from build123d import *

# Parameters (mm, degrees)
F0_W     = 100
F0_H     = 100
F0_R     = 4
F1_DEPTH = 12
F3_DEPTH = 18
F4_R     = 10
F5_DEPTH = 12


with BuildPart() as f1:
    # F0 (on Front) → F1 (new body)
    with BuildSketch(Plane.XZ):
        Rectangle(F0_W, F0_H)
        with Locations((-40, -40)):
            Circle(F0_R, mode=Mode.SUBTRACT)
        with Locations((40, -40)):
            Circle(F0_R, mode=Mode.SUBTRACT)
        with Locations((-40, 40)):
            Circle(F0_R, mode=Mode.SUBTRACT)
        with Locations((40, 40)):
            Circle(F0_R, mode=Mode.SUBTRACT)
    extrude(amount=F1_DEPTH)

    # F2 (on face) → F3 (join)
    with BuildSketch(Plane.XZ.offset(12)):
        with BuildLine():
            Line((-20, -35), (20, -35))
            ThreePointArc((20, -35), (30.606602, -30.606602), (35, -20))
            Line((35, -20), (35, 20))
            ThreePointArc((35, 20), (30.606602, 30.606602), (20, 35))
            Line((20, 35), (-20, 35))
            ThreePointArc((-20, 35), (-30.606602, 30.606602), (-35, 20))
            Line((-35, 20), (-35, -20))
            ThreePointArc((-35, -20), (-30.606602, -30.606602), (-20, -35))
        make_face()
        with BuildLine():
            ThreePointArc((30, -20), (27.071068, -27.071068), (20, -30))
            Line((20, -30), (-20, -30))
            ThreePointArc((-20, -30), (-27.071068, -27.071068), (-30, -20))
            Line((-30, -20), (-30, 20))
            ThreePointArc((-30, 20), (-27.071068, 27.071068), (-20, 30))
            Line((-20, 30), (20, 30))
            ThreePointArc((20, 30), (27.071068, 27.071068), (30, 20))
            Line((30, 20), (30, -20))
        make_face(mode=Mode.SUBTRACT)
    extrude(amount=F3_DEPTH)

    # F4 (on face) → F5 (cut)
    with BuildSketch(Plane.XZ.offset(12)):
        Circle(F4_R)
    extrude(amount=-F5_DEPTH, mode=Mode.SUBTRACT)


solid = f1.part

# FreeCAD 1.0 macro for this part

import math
import FreeCAD as App
import Part
import Sketcher

V = App.Vector
Q = App.Units.Quantity

doc = App.newDocument("Part")
params = doc.addObject("Spreadsheet::Sheet", "Params")
for row, (alias, value) in enumerate([
    ("sketch1_diameter", "8 mm"),
    ("sketch1_width", "100 mm"),
    ("pad1_length", "12 mm"),
    ("sketch2_radius", "14.999999 mm"),
    ("sketch2_radius2", "9.999999 mm"),
    ("sketch2_width", "40 mm"),
    ("pad2_length", "18 mm"),
    ("sketch3_diameter", "20 mm"),
    ("pocket1_length", "12 mm"),
], start=1):
    params.set(f"A{row}", alias)
    params.set(f"B{row}", "=" + value)
    params.setAlias(f"B{row}", alias)

body = doc.addObject("PartDesign::Body", "Body")

# Sketch on XZ plane
sketch1 = doc.addObject("Sketcher::SketchObject", "Sketch")
body.addObject(sketch1)
sketch1.AttachmentSupport = (doc.XZ_Plane, [""])
sketch1.MapMode = "FlatFace"
sketch1.addGeometry([
    Part.LineSegment(V(-50, 50, 0), V(-50, -50, 0)),  # 0
    Part.LineSegment(V(-50, -50, 0), V(50, -50, 0)),  # 1
    Part.LineSegment(V(50, -50, 0), V(50, 50, 0)),  # 2
    Part.LineSegment(V(50, 50, 0), V(-50, 50, 0)),  # 3
    Part.Circle(V(-40, -40, 0), V(0, 0, 1), 4),  # 4
    Part.Circle(V(40, -40, 0), V(0, 0, 1), 4),  # 5
    Part.Circle(V(-40, 40, 0), V(0, 0, 1), 4),  # 6
    Part.Circle(V(40, 40, 0), V(0, 0, 1), 4),  # 7
], False)
sketch1.addConstraint([
    Sketcher.Constraint("Coincident", 0, 2, 1, 1),
    Sketcher.Constraint("Coincident", 1, 2, 2, 1),
    Sketcher.Constraint("Coincident", 2, 2, 3, 1),
    Sketcher.Constraint("Coincident", 3, 2, 0, 1),
    Sketcher.Constraint("Vertical", 0),
    Sketcher.Constraint("Horizontal", 1),
    Sketcher.Constraint("Vertical", 2),
    Sketcher.Constraint("Horizontal", 3),
    Sketcher.Constraint("Equal", 4, 5),
    Sketcher.Constraint("Equal", 5, 6),
    Sketcher.Constraint("Equal", 6, 7),
    Sketcher.Constraint("Symmetric", 5, 3, 6, 3, -1, 1),
    Sketcher.Constraint("Symmetric", 4, 3, 7, 3, -1, 1),
    Sketcher.Constraint("Symmetric", 0, 2, 2, 2, -1, 1),
    Sketcher.Constraint("Symmetric", 4, 3, 5, 3, -2),
    Sketcher.Constraint("Equal", 3, 0),
    Sketcher.Constraint("Diameter", 4, Q("8 mm")),
    Sketcher.Constraint("DistanceX", 1, 1, 1, 2, Q("100 mm")),
    Sketcher.Constraint("DistanceX", 4, 3, -1, 1, Q("40 mm")),
    Sketcher.Constraint("DistanceY", 4, 3, -1, 1, Q("40 mm")),
])
sketch1.setExpression("Constraints[16]", "Params.sketch1_diameter")
sketch1.setExpression("Constraints[17]", "Params.sketch1_width")
pad1 = doc.addObject("PartDesign::Pad", "Pad")
body.addObject(pad1)
pad1.Profile = sketch1
pad1.setExpression("Length", "Params.pad1_length")

# Sketch on XZ plane
sketch2 = doc.addObject("Sketcher::SketchObject", "Sketch001")
body.addObject(sketch2)
sketch2.AttachmentSupport = (doc.XZ_Plane, [""])
sketch2.MapMode = "FlatFace"
sketch2.AttachmentOffset = App.Placement(V(0, 0, 12), App.Rotation())
sketch2.addGeometry([
    Part.LineSegment(V(-20, -35, 0), V(20, -35, 0)),  # 0
    Part.ArcOfCircle(Part.Circle(V(20.000001, -20.000001, 0), V(0, 0, 1), 14.999999), math.radians(-90.000004), math.radians(0.000004)),  # 1
    Part.LineSegment(V(35, -20, 0), V(35, 20, 0)),  # 2
    Part.ArcOfCircle(Part.Circle(V(20.000001, 20.000001, 0), V(0, 0, 1), 14.999999), math.radians(-0.000004), math.radians(90.000004)),  # 3
    Part.LineSegment(V(20, 35, 0), V(-20, 35, 0)),  # 4
    Part.ArcOfCircle(Part.Circle(V(-20.000001, 20.000001, 0), V(0, 0, 1), 14.999999), math.radians(89.999996), math.radians(180.000004)),  # 5
    Part.LineSegment(V(-35, 20, 0), V(-35, -20, 0)),  # 6
    Part.ArcOfCircle(Part.Circle(V(-20.000001, -20.000001, 0), V(0, 0, 1), 14.999999), math.radians(179.999996), math.radians(270.000004)),  # 7
    Part.LineSegment(V(30, 20, 0), V(30, -20, 0)),  # 8
    Part.ArcOfCircle(Part.Circle(V(20.000001, -20.000001, 0), V(0, 0, 1), 9.999999), math.radians(-90.000004), math.radians(0.000004)),  # 9
    Part.LineSegment(V(20, -30, 0), V(-20, -30, 0)),  # 10
    Part.ArcOfCircle(Part.Circle(V(-20.000001, -20.000001, 0), V(0, 0, 1), 9.999999), math.radians(179.999996), math.radians(270.000004)),  # 11
    Part.LineSegment(V(-30, -20, 0), V(-30, 20, 0)),  # 12
    Part.ArcOfCircle(Part.Circle(V(-20.000001, 20.000001, 0), V(0, 0, 1), 9.999999), math.radians(89.999996), math.radians(180.000004)),  # 13
    Part.LineSegment(V(-20, 30, 0), V(20, 30, 0)),  # 14
    Part.ArcOfCircle(Part.Circle(V(20.000001, 20.000001, 0), V(0, 0, 1), 9.999999), math.radians(-0.000004), math.radians(90.000004)),  # 15
], False)
sketch2.addConstraint([
    Sketcher.Constraint("Tangent", 0, 2, 1, 1),
    Sketcher.Constraint("Tangent", 1, 2, 2, 1),
    Sketcher.Constraint("Tangent", 2, 2, 3, 1),
    Sketcher.Constraint("Tangent", 3, 2, 4, 1),
    Sketcher.Constraint("Tangent", 4, 2, 5, 1),
    Sketcher.Constraint("Tangent", 5, 2, 6, 1),
    Sketcher.Constraint("Tangent", 6, 2, 7, 1),
    Sketcher.Constraint("Tangent", 7, 2, 0, 1),
    Sketcher.Constraint("Tangent", 8, 2, 9, 2),
    Sketcher.Constraint("Tangent", 9, 1, 10, 1),
    Sketcher.Constraint("Tangent", 10, 2, 11, 2),
    Sketcher.Constraint("Tangent", 11, 1, 12, 1),
    Sketcher.Constraint("Tangent", 12, 2, 13, 2),
    Sketcher.Constraint("Tangent", 13, 1, 14, 1),
    Sketcher.Constraint("Tangent", 14, 2, 15, 2),
    Sketcher.Constraint("Tangent", 15, 1, 8, 1),
    Sketcher.Constraint("Horizontal", 0),
    Sketcher.Constraint("Vertical", 2),
    Sketcher.Constraint("Horizontal", 4),
    Sketcher.Constraint("Vertical", 6),
    Sketcher.Constraint("Vertical", 8),
    Sketcher.Constraint("Horizontal", 10),
    Sketcher.Constraint("Vertical", 12),
    Sketcher.Constraint("Horizontal", 14),
    Sketcher.Constraint("Coincident", 9, 3, 1, 3),
    Sketcher.Constraint("Coincident", 11, 3, 7, 3),
    Sketcher.Constraint("Coincident", 13, 3, 5, 3),
    Sketcher.Constraint("Equal", 1, 3),
    Sketcher.Constraint("Equal", 3, 5),
    Sketcher.Constraint("Equal", 5, 7),
    Sketcher.Constraint("Equal", 13, 15),
    Sketcher.Constraint("Symmetric", 1, 3, 5, 3, -1, 1),
    Sketcher.Constraint("Equal", 14, 2),
    Sketcher.Constraint("Radius", 1, Q("14.999999 mm")),
    Sketcher.Constraint("Radius", 9, Q("9.999999 mm")),
    Sketcher.Constraint("DistanceX", 0, 1, 0, 2, Q("40 mm")),
])
sketch2.setExpression("Constraints[33]", "Params.sketch2_radius")
sketch2.setExpression("Constraints[34]", "Params.sketch2_radius2")
sketch2.setExpression("Constraints[35]", "Params.sketch2_width")
pad2 = doc.addObject("PartDesign::Pad", "Pad001")
body.addObject(pad2)
pad2.Profile = sketch2
pad2.setExpression("Length", "Params.pad2_length")

# Sketch on XZ plane
sketch3 = doc.addObject("Sketcher::SketchObject", "Sketch002")
body.addObject(sketch3)
sketch3.AttachmentSupport = (doc.XZ_Plane, [""])
sketch3.MapMode = "FlatFace"
sketch3.AttachmentOffset = App.Placement(V(0, 0, 12), App.Rotation())
sketch3.addGeometry(Part.Circle(V(0, 0, 0), V(0, 0, 1), 10), False)
sketch3.addConstraint([
    Sketcher.Constraint("Coincident", 0, 3, -1, 1),
    Sketcher.Constraint("Diameter", 0, Q("20 mm")),
])
sketch3.setExpression("Constraints[1]", "Params.sketch3_diameter")
pocket1 = doc.addObject("PartDesign::Pocket", "Pocket")
body.addObject(pocket1)
pocket1.Profile = sketch3
pocket1.setExpression("Length", "Params.pocket1_length")

doc.recompute()
